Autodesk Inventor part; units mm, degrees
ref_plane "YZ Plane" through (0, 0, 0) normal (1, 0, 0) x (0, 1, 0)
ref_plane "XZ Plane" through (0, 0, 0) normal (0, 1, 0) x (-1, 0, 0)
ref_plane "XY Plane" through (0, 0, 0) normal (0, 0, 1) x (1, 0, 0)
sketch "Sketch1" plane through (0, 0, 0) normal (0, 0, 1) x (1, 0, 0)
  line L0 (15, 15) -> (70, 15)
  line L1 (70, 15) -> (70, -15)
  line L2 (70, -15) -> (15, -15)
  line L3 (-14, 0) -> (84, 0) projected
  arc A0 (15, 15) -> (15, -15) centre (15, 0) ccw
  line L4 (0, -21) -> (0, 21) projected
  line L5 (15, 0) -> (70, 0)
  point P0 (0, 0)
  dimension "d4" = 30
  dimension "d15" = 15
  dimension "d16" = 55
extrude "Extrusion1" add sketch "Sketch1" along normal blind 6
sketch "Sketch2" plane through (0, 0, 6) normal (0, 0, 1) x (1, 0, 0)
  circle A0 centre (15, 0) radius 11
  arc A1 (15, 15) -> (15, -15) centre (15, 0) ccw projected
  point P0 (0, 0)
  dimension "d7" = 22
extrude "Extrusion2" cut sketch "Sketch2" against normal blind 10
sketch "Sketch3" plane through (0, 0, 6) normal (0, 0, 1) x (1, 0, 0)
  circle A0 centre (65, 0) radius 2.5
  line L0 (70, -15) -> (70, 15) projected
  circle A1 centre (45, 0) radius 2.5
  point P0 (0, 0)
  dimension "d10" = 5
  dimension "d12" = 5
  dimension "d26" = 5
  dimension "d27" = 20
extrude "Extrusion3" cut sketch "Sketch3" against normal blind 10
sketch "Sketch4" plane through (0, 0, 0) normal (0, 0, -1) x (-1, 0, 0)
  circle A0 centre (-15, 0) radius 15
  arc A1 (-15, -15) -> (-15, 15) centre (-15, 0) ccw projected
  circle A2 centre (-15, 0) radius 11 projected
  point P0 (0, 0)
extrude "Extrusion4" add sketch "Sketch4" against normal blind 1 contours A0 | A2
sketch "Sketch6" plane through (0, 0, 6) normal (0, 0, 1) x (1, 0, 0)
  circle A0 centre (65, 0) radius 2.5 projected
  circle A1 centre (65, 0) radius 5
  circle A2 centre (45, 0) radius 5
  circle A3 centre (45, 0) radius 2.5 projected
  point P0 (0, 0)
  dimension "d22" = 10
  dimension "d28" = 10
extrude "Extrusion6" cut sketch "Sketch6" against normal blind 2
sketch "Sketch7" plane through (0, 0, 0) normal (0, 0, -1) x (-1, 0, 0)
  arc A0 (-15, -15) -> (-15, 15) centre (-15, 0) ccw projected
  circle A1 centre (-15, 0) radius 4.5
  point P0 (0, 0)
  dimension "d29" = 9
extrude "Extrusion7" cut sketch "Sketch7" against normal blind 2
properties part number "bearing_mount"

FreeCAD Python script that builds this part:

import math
import FreeCAD as App
import Part
import Sketcher

V = App.Vector

doc = App.newDocument("Part")
body = doc.addObject("PartDesign::Body", "Body")

sketch1 = doc.addObject("Sketcher::SketchObject", "Sketch")
body.addObject(sketch1)
sketch1.AttachmentSupport = (doc.XY_Plane, [""])
sketch1.MapMode = "FlatFace"
sketch1.addGeometry(Part.LineSegment(V(70, 15, 0), V(15, 15, 0)), False)
sketch1.addGeometry(Part.ArcOfCircle(Part.Circle(V(15, 0, 0), V(0, 0, 1), 15), math.radians(90), math.radians(270)), False)
sketch1.addGeometry(Part.LineSegment(V(15, -15, 0), V(70, -15, 0)), False)
sketch1.addGeometry(Part.LineSegment(V(70, -15, 0), V(70, 15, 0)), False)
sketch1.addConstraint(Sketcher.Constraint("Tangent", 0, 2, 1, 1))
sketch1.addConstraint(Sketcher.Constraint("Tangent", 1, 2, 2, 1))
sketch1.addConstraint(Sketcher.Constraint("Coincident", 2, 2, 3, 1))
sketch1.addConstraint(Sketcher.Constraint("Coincident", 3, 2, 0, 1))
sketch1.addConstraint(Sketcher.Constraint("Horizontal", 0))
sketch1.addConstraint(Sketcher.Constraint("Horizontal", 2))
sketch1.addConstraint(Sketcher.Constraint("Vertical", 3))
sketch1.addConstraint(Sketcher.Constraint("PointOnObject", 1, 3, -1))
sketch1.addConstraint(Sketcher.Constraint("Radius", 1, 15.0))
sketch1.addConstraint(Sketcher.Constraint("DistanceX", 0, 2, 0, 1, 55.0))
sketch1.addConstraint(Sketcher.Constraint("DistanceX", -1, 1, 1, 3, 15.0))
pad1 = doc.addObject("PartDesign::Pad", "Pad")
body.addObject(pad1)
pad1.Profile = sketch1
pad1.Length = 6

sketch2 = doc.addObject("Sketcher::SketchObject", "Sketch001")
body.addObject(sketch2)
sketch2.AttachmentSupport = (doc.XY_Plane, [""])
sketch2.MapMode = "FlatFace"
sketch2.AttachmentOffset = App.Placement(V(0, 0, 6), App.Rotation())
sketch2.addGeometry(Part.Circle(V(15, 0, 0), V(0, 0, 1), 11), False)
sketch2.addConstraint(Sketcher.Constraint("PointOnObject", 0, 3, -1))
sketch2.addConstraint(Sketcher.Constraint("Diameter", 0, 22.0))
sketch2.addConstraint(Sketcher.Constraint("DistanceX", -1, 1, 0, 3, 15.0))
pocket1 = doc.addObject("PartDesign::Pocket", "Pocket")
body.addObject(pocket1)
pocket1.Profile = sketch2
pocket1.Length = 10

sketch3 = doc.addObject("Sketcher::SketchObject", "Sketch002")
body.addObject(sketch3)
sketch3.AttachmentSupport = (doc.XY_Plane, [""])
sketch3.MapMode = "FlatFace"
sketch3.AttachmentOffset = App.Placement(V(0, 0, 6), App.Rotation())
sketch3.addGeometry(Part.Circle(V(65, 0, 0), V(0, 0, 1), 2.5), False)
sketch3.addGeometry(Part.Circle(V(45, 0, 0), V(0, 0, 1), 2.5), False)
sketch3.addConstraint(Sketcher.Constraint("Equal", 0, 1))
sketch3.addConstraint(Sketcher.Constraint("PointOnObject", 0, 3, -1))
sketch3.addConstraint(Sketcher.Constraint("PointOnObject", 1, 3, -1))
sketch3.addConstraint(Sketcher.Constraint("Diameter", 0, 5.0))
sketch3.addConstraint(Sketcher.Constraint("DistanceX", 1, 3, 0, 3, 20.0))
sketch3.addConstraint(Sketcher.Constraint("DistanceX", -1, 1, 0, 3, 65.0))
pocket2 = doc.addObject("PartDesign::Pocket", "Pocket001")
body.addObject(pocket2)
pocket2.Profile = sketch3
pocket2.Length = 10

sketch4 = doc.addObject("Sketcher::SketchObject", "Sketch003")
body.addObject(sketch4)
sketch4.AttachmentSupport = (doc.XY_Plane, [""])
sketch4.MapMode = "FlatFace"
sketch4.addGeometry(Part.Circle(V(15, 0, 0), V(0, 0, 1), 15), False)
sketch4.addConstraint(Sketcher.Constraint("PointOnObject", 0, 3, -1))
sketch4.addConstraint(Sketcher.Constraint("Diameter", 0, 30.0))
sketch4.addConstraint(Sketcher.Constraint("DistanceX", -1, 1, 0, 3, 15.0))
pad2 = doc.addObject("PartDesign::Pad", "Pad001")
body.addObject(pad2)
pad2.Profile = sketch4
pad2.Length = 1

sketch5 = doc.addObject("Sketcher::SketchObject", "Sketch004")
body.addObject(sketch5)
sketch5.AttachmentSupport = (doc.XY_Plane, [""])
sketch5.MapMode = "FlatFace"
sketch5.AttachmentOffset = App.Placement(V(0, 0, 6), App.Rotation())
sketch5.addGeometry(Part.Circle(V(65, 0, 0), V(0, 0, 1), 5), False)
sketch5.addGeometry(Part.Circle(V(65, 0, 0), V(0, 0, 1), 2.5), False)
sketch5.addGeometry(Part.Circle(V(45, 0, 0), V(0, 0, 1), 5), False)
sketch5.addGeometry(Part.Circle(V(45, 0, 0), V(0, 0, 1), 2.5), False)
sketch5.addConstraint(Sketcher.Constraint("Coincident", 1, 3, 0, 3))
sketch5.addConstraint(Sketcher.Constraint("Coincident", 3, 3, 2, 3))
sketch5.addConstraint(Sketcher.Constraint("Equal", 0, 2))
sketch5.addConstraint(Sketcher.Constraint("Equal", 1, 3))
sketch5.addConstraint(Sketcher.Constraint("PointOnObject", 0, 3, -1))
sketch5.addConstraint(Sketcher.Constraint("PointOnObject", 2, 3, -1))
sketch5.addConstraint(Sketcher.Constraint("Diameter", 0, 10.0))
sketch5.addConstraint(Sketcher.Constraint("Diameter", 1, 5.0))
sketch5.addConstraint(Sketcher.Constraint("DistanceX", -1, 1, 0, 3, 65.0))
sketch5.addConstraint(Sketcher.Constraint("DistanceX", -1, 1, 2, 3, 45.0))
pocket3 = doc.addObject("PartDesign::Pocket", "Pocket002")
body.addObject(pocket3)
pocket3.Profile = sketch5
pocket3.Length = 2

sketch6 = doc.addObject("Sketcher::SketchObject", "Sketch005")
body.addObject(sketch6)
sketch6.AttachmentSupport = (doc.XY_Plane, [""])
sketch6.MapMode = "FlatFace"
sketch6.addGeometry(Part.Circle(V(15, 0, 0), V(0, 0, 1), 4.5), False)
sketch6.addConstraint(Sketcher.Constraint("PointOnObject", 0, 3, -1))
sketch6.addConstraint(Sketcher.Constraint("Diameter", 0, 9.0))
sketch6.addConstraint(Sketcher.Constraint("DistanceX", -1, 1, 0, 3, 15.0))
pocket4 = doc.addObject("PartDesign::Pocket", "Pocket003")
body.addObject(pocket4)
pocket4.Profile = sketch6
pocket4.Length = 2
pocket4.Reversed = True

doc.recompute()
